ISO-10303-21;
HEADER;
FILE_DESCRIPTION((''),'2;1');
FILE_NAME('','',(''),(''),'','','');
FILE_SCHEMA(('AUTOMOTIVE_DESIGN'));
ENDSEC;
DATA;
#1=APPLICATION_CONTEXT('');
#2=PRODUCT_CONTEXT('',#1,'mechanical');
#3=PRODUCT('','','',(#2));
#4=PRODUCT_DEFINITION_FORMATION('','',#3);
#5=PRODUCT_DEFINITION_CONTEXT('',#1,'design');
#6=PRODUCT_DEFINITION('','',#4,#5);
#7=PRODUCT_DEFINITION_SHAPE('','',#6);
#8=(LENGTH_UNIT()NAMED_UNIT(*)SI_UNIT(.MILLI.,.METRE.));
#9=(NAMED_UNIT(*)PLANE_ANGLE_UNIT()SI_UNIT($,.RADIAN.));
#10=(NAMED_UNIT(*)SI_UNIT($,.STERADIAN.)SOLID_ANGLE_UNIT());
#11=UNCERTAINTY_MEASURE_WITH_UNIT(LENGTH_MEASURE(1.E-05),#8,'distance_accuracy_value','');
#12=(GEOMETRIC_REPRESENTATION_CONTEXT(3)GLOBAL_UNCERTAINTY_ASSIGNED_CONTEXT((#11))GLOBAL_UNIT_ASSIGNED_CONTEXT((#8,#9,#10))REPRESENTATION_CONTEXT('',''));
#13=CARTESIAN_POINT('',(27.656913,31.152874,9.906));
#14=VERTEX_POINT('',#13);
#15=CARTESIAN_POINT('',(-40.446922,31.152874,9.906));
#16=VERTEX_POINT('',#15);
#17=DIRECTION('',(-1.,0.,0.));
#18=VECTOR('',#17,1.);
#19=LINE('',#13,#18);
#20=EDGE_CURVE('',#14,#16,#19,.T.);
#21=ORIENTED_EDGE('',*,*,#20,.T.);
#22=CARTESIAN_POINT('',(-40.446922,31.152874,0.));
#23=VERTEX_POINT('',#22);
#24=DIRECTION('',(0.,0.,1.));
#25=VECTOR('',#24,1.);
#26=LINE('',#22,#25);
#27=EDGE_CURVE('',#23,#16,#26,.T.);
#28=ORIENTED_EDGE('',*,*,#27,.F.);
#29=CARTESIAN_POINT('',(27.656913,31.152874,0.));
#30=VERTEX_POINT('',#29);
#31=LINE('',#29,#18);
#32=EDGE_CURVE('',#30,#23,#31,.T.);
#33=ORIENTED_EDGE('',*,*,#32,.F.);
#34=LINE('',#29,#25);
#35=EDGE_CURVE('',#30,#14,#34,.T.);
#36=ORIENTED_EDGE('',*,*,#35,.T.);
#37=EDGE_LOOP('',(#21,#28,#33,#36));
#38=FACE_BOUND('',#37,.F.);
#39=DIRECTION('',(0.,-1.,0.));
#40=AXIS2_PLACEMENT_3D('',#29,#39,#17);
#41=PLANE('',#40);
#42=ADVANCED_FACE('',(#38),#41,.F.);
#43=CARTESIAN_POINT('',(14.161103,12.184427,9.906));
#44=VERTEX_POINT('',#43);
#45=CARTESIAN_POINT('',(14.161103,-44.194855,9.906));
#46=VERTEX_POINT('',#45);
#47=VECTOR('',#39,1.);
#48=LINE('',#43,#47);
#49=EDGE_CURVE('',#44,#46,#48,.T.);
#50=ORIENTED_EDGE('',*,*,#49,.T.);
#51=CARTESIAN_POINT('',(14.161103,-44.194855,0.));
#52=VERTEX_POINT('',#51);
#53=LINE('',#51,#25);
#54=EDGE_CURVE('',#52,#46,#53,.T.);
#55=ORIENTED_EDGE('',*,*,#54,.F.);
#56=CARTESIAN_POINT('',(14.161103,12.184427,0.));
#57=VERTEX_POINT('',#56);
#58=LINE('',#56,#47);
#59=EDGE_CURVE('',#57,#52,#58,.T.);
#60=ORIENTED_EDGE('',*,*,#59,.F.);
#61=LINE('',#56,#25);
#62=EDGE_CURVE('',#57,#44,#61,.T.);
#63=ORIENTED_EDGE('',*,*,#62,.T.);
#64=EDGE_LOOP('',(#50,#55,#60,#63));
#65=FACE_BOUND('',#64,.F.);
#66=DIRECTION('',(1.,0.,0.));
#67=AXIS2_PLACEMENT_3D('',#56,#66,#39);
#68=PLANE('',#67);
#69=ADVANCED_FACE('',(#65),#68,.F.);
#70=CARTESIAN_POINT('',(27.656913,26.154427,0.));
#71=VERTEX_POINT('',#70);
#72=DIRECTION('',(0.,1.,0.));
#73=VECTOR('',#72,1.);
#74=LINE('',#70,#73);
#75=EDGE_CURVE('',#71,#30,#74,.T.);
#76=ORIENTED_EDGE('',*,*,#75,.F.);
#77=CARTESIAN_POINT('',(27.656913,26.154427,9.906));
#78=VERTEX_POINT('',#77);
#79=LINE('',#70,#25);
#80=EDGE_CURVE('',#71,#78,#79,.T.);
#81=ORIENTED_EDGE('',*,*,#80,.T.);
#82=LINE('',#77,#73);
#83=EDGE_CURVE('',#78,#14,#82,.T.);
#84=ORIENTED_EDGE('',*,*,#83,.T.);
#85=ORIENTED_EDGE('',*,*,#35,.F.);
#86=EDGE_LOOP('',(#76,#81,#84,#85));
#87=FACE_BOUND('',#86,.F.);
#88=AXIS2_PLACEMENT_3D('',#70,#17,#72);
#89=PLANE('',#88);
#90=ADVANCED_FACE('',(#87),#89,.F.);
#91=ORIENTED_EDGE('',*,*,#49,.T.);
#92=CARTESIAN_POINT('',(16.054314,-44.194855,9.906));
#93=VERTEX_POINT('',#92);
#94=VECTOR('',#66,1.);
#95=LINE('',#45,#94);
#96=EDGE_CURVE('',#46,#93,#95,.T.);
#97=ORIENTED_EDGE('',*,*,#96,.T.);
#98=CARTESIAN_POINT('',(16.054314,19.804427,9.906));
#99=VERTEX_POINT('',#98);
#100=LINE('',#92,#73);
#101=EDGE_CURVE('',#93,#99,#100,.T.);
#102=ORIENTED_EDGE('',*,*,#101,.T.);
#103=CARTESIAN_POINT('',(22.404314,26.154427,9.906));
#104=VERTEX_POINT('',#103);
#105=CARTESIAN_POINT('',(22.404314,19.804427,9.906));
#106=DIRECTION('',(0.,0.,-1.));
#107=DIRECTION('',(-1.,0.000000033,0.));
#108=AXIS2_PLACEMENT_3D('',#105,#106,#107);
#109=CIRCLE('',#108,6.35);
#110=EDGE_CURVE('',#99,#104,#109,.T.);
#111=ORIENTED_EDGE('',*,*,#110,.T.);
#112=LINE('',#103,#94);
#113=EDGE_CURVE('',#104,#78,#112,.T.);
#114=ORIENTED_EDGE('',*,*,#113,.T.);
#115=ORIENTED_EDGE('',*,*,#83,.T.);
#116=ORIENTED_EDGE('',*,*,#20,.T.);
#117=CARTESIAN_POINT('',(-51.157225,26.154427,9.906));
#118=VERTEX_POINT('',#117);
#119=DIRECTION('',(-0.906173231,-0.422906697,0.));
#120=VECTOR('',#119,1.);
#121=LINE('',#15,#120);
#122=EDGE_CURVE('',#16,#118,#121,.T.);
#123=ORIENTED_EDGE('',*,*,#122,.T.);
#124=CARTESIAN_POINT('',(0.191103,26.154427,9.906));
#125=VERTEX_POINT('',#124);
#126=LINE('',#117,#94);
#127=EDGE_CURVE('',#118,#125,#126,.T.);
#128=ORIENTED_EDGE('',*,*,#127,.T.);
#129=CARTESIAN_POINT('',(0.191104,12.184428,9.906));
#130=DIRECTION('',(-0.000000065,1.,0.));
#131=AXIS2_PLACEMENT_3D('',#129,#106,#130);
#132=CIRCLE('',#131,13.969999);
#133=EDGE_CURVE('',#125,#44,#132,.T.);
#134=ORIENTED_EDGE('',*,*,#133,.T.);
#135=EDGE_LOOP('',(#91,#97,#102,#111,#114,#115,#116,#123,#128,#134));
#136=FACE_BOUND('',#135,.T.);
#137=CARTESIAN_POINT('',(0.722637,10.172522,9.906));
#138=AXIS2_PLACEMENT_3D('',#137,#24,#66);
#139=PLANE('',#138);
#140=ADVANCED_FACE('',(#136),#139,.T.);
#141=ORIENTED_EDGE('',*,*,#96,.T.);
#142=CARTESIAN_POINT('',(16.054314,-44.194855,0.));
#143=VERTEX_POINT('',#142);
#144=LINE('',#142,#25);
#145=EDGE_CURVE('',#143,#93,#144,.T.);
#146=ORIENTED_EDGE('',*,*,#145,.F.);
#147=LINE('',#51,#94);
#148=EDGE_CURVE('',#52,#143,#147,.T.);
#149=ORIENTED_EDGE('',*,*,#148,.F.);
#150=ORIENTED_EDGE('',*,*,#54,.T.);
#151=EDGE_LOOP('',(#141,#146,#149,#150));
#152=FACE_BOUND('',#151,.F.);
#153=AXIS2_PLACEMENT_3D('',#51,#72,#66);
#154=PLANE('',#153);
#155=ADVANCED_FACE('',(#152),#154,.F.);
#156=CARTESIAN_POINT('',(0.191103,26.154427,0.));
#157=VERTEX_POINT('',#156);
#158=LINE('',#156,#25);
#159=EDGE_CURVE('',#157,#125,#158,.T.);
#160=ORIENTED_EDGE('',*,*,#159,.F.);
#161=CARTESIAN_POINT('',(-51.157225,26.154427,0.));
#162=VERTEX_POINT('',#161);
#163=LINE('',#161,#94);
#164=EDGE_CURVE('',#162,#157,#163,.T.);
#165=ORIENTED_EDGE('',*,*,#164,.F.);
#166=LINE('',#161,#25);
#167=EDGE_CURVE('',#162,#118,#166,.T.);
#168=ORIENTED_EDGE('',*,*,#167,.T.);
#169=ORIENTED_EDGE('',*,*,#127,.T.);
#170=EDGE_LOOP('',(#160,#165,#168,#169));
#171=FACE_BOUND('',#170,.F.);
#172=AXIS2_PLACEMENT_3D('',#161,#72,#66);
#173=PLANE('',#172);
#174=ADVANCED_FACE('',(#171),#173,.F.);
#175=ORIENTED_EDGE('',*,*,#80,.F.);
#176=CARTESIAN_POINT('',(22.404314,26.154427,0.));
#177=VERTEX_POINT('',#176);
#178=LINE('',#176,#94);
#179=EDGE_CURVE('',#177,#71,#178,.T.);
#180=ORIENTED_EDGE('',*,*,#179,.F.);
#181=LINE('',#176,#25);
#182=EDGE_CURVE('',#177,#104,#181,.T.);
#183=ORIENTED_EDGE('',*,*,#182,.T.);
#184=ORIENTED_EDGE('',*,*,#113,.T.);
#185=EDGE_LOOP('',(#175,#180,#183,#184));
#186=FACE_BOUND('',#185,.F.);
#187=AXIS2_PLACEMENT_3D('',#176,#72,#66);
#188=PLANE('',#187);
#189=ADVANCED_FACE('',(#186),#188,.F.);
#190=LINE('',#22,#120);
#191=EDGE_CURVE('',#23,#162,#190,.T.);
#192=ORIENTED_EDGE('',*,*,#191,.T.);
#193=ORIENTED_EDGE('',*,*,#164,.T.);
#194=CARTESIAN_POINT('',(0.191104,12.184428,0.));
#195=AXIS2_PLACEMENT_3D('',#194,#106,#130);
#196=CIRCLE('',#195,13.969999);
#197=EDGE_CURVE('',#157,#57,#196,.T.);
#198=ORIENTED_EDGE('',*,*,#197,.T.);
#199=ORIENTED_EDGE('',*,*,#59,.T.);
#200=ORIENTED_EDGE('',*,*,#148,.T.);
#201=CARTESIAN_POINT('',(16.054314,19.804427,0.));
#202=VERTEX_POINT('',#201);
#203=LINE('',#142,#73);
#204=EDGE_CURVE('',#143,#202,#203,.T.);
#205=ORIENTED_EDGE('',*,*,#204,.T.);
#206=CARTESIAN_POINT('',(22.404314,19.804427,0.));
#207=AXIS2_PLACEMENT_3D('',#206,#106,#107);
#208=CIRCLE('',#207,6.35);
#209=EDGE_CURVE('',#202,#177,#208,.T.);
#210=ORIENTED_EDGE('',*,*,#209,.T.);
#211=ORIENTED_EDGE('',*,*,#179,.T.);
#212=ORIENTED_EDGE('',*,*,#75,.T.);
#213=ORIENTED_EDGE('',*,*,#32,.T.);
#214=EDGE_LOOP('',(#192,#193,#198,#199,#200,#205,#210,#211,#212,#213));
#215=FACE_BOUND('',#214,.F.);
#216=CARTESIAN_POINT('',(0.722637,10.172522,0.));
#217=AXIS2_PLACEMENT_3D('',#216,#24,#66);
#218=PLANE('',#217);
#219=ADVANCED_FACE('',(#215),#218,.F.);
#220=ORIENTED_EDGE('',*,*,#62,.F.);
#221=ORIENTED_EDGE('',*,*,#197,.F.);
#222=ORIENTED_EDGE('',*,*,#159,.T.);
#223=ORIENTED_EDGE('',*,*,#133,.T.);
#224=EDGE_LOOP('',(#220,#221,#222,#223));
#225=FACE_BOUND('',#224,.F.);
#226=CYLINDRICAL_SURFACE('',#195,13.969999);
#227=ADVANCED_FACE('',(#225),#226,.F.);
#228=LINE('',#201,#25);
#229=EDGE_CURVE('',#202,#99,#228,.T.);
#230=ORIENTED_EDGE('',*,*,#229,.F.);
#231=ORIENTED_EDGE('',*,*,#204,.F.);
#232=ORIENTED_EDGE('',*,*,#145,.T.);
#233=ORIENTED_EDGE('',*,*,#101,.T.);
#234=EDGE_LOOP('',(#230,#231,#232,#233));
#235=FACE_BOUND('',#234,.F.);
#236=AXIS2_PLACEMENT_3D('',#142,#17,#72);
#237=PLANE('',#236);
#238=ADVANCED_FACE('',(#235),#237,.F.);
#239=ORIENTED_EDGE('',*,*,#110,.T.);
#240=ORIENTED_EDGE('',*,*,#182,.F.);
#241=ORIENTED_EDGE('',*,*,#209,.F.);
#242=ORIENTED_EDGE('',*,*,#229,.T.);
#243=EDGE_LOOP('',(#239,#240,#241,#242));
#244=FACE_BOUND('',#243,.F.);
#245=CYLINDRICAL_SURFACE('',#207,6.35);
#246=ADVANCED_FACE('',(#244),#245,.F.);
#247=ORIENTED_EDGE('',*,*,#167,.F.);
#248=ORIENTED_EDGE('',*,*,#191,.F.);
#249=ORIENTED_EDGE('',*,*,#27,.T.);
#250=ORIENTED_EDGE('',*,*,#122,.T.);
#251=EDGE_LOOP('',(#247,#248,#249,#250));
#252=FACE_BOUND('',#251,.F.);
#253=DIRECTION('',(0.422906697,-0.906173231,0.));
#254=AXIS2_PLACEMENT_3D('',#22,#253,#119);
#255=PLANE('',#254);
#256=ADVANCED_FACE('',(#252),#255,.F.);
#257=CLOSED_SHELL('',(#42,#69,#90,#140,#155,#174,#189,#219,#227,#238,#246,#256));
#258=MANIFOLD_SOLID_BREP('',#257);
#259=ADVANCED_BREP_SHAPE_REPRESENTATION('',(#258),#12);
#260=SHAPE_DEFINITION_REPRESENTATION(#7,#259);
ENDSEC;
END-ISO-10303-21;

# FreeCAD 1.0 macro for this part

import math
import FreeCAD as App
import Part
import Sketcher
from FreeCAD import Vector
Q = App.Units.Quantity

doc = App.newDocument("Part")
body = doc.addObject("PartDesign::Body", "Body")

sketch1 = body.newObject("Sketcher::SketchObject", "Sketch")
sketch1.AttachmentSupport = (doc.getObject("XY_Plane"), [""])
sketch1.MapMode = "FlatFace"
sketch1.addGeometry([
    Part.LineSegment(Vector(14.2, -44.2, 0), Vector(16.1, -44.2, 0)),
    Part.LineSegment(Vector(16.1, -44.2, 0), Vector(16.1, 19.8, 0)),
    Part.ArcOfCircle(Part.Circle(Vector(22.4, 19.8, 0), Vector(0, 0, 1), 6.4), math.radians(90), math.radians(180)),
    Part.LineSegment(Vector(22.4, 26.2, 0), Vector(27.7, 26.2, 0)),
    Part.LineSegment(Vector(27.7, 26.2, 0), Vector(27.7, 31.2, 0)),
    Part.LineSegment(Vector(27.7, 31.2, 0), Vector(-40.4, 31.2, 0)),
    Part.LineSegment(Vector(-40.4, 31.2, 0), Vector(-51.2, 26.2, 0)),
    Part.LineSegment(Vector(-51.2, 26.2, 0), Vector(0.2, 26.2, 0)),
    Part.ArcOfCircle(Part.Circle(Vector(0.2, 12.2, 0), Vector(0, 0, 1), 14), math.radians(0), math.radians(90)),
    Part.LineSegment(Vector(14.2, 12.2, 0), Vector(14.2, -44.2, 0)),
], False)
sketch1.addConstraint([
    Sketcher.Constraint("Coincident", 0, 2, 1, 1),
    Sketcher.Constraint("Tangent", 1, 2, 2, 2),
    Sketcher.Constraint("Tangent", 2, 1, 3, 1),
    Sketcher.Constraint("Coincident", 3, 2, 4, 1),
    Sketcher.Constraint("Coincident", 4, 2, 5, 1),
    Sketcher.Constraint("Coincident", 5, 2, 6, 1),
    Sketcher.Constraint("Coincident", 6, 2, 7, 1),
    Sketcher.Constraint("Tangent", 7, 2, 8, 2),
    Sketcher.Constraint("Tangent", 8, 1, 9, 1),
    Sketcher.Constraint("Coincident", 9, 2, 0, 1),
    Sketcher.Constraint("Horizontal", 0),
    Sketcher.Constraint("Vertical", 1),
    Sketcher.Constraint("Horizontal", 3),
    Sketcher.Constraint("Vertical", 4),
    Sketcher.Constraint("Horizontal", 5),
    Sketcher.Constraint("Horizontal", 7),
    Sketcher.Constraint("Vertical", 9),
    Sketcher.Constraint("Horizontal", 3, 2, 6, 2),
    Sketcher.Constraint("Radius", 2, Q("0.25 in")),
    Sketcher.Constraint("Radius", 8, Q("0.55 in")),
    Sketcher.Constraint("DistanceX", 3, 1, 3, 2, 5.252599),
    Sketcher.Constraint("DistanceX", 0, 1, 0, 2, 1.893211),
    Sketcher.Constraint("DistanceY", 1, 1, 1, 2, 63.999282),
    Sketcher.Constraint("DistanceX", 5, 2, 5, 1, 68.103835),
    Sketcher.Constraint("DistanceX", 7, 1, 7, 2, 51.348328),
    Sketcher.Constraint("DistanceY", 4, 1, 4, 2, 4.998447),
    Sketcher.Constraint("DistanceX", -1, 1, 2, 3, 22.404314),
    Sketcher.Constraint("DistanceY", -1, 1, 2, 3, 19.804427),
])
pad1 = body.newObject("PartDesign::Pad", "Pad")
pad1.Profile = sketch1
pad1.Length = Q("0.39 in")

doc.recompute()
